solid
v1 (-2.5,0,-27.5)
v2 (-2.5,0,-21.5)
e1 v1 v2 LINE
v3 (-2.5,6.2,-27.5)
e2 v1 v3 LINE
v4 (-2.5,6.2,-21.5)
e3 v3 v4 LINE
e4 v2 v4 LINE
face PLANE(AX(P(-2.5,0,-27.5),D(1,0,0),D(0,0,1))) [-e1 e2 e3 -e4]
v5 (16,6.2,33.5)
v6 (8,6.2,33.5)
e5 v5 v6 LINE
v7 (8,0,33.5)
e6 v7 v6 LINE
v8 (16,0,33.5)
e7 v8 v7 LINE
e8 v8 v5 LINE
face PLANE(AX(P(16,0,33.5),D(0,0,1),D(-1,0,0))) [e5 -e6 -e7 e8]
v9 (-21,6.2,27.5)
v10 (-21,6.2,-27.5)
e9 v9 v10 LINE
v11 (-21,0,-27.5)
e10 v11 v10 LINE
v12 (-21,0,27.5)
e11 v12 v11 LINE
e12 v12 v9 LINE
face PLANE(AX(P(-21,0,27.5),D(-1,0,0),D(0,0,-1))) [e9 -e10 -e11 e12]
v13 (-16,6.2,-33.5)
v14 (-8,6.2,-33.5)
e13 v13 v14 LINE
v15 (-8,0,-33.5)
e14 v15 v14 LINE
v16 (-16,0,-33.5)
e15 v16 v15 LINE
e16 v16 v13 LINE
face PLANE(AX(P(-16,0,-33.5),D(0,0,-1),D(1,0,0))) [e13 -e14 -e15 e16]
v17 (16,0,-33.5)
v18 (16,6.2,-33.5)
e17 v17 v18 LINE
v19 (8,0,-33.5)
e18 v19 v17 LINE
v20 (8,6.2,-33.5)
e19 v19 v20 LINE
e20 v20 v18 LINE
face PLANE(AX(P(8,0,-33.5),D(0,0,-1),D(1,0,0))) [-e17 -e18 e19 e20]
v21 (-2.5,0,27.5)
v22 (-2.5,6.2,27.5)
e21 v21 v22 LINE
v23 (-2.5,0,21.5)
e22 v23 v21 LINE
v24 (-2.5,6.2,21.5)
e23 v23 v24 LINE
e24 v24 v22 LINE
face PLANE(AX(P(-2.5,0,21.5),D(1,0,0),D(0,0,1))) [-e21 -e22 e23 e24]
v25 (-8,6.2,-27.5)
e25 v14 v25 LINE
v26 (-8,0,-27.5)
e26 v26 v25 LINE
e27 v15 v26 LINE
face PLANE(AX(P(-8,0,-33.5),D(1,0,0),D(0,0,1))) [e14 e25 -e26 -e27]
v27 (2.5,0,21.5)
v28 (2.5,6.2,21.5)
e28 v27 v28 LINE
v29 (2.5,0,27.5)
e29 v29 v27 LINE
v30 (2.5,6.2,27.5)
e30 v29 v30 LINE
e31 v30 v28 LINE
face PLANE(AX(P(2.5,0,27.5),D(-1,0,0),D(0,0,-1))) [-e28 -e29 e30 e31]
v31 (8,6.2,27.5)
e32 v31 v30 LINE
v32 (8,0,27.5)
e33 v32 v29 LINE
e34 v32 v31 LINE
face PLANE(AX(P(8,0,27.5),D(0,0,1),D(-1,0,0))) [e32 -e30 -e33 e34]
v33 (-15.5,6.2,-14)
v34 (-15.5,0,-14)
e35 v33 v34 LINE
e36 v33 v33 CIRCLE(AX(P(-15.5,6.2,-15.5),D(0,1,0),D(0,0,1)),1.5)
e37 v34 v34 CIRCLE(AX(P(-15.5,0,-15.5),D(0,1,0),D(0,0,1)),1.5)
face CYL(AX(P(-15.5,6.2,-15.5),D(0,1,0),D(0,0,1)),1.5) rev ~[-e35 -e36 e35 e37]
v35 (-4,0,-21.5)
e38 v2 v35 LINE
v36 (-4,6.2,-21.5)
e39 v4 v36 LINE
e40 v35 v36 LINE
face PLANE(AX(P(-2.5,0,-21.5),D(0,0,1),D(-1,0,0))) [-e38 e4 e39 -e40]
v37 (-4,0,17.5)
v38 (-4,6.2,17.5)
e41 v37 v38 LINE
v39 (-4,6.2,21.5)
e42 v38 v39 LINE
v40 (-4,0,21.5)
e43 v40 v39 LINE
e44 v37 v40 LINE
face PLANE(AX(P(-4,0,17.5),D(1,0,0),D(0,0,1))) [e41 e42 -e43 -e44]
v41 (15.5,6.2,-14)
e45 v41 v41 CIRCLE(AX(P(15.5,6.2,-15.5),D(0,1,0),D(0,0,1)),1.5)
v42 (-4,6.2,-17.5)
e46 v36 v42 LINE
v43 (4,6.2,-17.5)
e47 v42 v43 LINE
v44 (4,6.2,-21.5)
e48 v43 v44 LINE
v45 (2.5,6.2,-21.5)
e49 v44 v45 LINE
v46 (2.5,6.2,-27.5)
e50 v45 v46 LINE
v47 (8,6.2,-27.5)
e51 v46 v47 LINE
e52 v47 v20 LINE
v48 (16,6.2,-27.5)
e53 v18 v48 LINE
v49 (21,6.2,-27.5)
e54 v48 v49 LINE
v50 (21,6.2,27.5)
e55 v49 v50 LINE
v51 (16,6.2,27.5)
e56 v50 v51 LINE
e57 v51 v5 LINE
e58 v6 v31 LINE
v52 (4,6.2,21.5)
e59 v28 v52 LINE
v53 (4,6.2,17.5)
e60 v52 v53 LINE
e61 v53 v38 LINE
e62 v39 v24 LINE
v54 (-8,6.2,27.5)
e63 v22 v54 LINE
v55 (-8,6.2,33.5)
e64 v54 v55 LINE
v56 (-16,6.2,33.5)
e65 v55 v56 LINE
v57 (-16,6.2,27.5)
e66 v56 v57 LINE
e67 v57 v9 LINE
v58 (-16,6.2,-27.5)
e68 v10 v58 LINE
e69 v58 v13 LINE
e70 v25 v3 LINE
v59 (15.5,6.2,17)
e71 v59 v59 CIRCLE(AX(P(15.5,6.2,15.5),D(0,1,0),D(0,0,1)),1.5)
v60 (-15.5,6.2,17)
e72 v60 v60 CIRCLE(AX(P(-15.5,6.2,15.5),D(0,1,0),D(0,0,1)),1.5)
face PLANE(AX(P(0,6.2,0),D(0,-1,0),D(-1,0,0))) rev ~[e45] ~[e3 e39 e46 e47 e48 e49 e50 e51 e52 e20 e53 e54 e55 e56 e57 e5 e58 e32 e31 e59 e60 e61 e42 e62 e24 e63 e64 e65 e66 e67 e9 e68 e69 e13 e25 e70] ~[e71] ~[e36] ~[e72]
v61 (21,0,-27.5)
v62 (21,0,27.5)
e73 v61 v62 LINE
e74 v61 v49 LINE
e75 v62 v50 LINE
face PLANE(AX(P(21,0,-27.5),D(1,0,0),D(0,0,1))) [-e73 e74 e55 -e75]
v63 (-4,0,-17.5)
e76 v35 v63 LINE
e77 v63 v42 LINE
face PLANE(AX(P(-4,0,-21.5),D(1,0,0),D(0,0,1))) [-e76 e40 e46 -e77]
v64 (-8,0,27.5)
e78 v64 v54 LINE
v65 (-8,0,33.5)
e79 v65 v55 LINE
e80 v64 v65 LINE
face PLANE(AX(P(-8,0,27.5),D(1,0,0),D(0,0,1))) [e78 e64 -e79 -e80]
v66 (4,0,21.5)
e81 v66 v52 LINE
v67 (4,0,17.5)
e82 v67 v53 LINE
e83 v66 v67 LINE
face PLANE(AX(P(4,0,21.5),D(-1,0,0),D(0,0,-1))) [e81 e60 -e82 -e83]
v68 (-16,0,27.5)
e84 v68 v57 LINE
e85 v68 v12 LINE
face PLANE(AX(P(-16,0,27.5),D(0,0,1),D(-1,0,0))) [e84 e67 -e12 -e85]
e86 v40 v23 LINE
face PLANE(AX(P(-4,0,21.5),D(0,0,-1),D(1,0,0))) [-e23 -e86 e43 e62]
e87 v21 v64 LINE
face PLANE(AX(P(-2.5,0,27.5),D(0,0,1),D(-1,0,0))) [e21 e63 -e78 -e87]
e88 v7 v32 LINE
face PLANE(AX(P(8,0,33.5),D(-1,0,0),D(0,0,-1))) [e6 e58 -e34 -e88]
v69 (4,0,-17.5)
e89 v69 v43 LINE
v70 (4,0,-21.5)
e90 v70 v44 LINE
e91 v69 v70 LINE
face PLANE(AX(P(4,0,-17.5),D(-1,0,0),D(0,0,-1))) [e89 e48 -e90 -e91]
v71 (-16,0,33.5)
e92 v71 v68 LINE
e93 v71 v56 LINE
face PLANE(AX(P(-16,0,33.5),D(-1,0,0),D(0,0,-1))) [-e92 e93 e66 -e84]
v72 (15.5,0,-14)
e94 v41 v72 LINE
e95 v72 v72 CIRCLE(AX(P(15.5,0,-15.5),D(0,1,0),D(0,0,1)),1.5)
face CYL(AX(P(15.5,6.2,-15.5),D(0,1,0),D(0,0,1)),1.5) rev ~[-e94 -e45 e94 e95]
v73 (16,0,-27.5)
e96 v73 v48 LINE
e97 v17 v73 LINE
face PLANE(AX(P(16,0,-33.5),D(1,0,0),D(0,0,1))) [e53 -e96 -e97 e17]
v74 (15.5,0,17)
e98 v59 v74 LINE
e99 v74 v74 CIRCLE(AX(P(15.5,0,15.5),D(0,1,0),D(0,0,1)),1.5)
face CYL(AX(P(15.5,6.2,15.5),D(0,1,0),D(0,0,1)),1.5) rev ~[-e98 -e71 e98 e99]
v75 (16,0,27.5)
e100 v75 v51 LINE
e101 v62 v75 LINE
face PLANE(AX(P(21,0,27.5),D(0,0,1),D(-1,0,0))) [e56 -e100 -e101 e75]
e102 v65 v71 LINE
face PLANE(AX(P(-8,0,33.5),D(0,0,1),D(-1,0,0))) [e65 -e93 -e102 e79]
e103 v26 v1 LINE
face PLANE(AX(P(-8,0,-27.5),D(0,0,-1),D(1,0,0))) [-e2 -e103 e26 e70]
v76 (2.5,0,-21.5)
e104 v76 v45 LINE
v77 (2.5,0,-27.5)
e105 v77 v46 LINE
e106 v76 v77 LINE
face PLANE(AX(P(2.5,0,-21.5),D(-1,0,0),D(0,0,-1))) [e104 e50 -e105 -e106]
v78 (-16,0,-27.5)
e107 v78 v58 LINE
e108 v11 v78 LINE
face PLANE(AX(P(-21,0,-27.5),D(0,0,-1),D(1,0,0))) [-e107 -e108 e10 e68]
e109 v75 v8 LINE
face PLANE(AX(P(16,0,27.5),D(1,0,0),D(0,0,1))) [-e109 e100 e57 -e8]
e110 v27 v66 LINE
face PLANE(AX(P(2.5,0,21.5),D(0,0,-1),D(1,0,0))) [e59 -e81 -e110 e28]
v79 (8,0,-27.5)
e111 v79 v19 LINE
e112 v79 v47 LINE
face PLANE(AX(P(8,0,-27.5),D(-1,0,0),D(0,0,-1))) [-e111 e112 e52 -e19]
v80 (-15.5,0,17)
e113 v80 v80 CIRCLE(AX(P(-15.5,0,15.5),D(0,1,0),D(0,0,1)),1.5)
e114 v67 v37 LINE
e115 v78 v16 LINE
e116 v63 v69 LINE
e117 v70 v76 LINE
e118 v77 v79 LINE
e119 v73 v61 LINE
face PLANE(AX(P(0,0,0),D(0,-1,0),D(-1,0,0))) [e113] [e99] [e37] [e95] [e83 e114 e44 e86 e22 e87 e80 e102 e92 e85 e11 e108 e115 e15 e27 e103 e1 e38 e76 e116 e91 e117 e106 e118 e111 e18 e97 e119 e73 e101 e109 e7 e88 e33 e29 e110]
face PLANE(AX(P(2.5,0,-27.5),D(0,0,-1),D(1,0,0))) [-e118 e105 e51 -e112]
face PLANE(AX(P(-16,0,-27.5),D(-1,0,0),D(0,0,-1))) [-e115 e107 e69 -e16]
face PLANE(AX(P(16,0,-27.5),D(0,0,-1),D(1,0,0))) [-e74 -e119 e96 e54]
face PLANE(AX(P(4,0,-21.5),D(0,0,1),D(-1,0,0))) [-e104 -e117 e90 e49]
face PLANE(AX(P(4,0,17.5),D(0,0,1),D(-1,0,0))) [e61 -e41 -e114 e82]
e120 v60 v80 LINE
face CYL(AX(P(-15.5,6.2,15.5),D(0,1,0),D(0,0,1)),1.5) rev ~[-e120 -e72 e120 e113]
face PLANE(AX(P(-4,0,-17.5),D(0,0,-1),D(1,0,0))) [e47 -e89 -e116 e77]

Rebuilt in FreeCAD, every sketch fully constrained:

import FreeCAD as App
import Part
import Sketcher
from FreeCAD import Vector
Q = App.Units.Quantity

doc = App.newDocument("Part")
body = doc.addObject("PartDesign::Body", "Body")

# Sketch on XZ plane
sketch1 = body.newObject("Sketcher::SketchObject", "Sketch")
sketch1.AttachmentSupport = (doc.getObject("XZ_Plane"), [""])
sketch1.MapMode = "FlatFace"
sketch1.addGeometry([
    Part.LineSegment(Vector(-16, -27.5, 0), Vector(-21, -27.5, 0)),  # 0
    Part.LineSegment(Vector(-21, -27.5, 0), Vector(-21, 27.5, 0)),  # 1
    Part.LineSegment(Vector(-21, 27.5, 0), Vector(-16, 27.5, 0)),  # 2
    Part.LineSegment(Vector(-16, 27.5, 0), Vector(-16, 33.5, 0)),  # 3
    Part.LineSegment(Vector(-16, 33.5, 0), Vector(-8, 33.5, 0)),  # 4
    Part.LineSegment(Vector(-8, 33.5, 0), Vector(-8, 27.5, 0)),  # 5
    Part.LineSegment(Vector(-8, 27.5, 0), Vector(-2.5, 27.5, 0)),  # 6
    Part.LineSegment(Vector(-2.5, 27.5, 0), Vector(-2.5, 21.5, 0)),  # 7
    Part.LineSegment(Vector(-2.5, 21.5, 0), Vector(-4, 21.5, 0)),  # 8
    Part.LineSegment(Vector(-4, 21.5, 0), Vector(-4, 17.5, 0)),  # 9
    Part.LineSegment(Vector(-4, 17.5, 0), Vector(4, 17.5, 0)),  # 10
    Part.LineSegment(Vector(4, 17.5, 0), Vector(4, 21.5, 0)),  # 11
    Part.LineSegment(Vector(4, 21.5, 0), Vector(2.5, 21.5, 0)),  # 12
    Part.LineSegment(Vector(2.5, 21.5, 0), Vector(2.5, 27.5, 0)),  # 13
    Part.LineSegment(Vector(2.5, 27.5, 0), Vector(8, 27.5, 0)),  # 14
    Part.LineSegment(Vector(8, 27.5, 0), Vector(8, 33.5, 0)),  # 15
    Part.LineSegment(Vector(8, 33.5, 0), Vector(16, 33.5, 0)),  # 16
    Part.LineSegment(Vector(16, 33.5, 0), Vector(16, 27.5, 0)),  # 17
    Part.LineSegment(Vector(16, 27.5, 0), Vector(21, 27.5, 0)),  # 18
    Part.LineSegment(Vector(21, 27.5, 0), Vector(21, -27.5, 0)),  # 19
    Part.LineSegment(Vector(21, -27.5, 0), Vector(16, -27.5, 0)),  # 20
    Part.LineSegment(Vector(16, -27.5, 0), Vector(16, -33.5, 0)),  # 21
    Part.LineSegment(Vector(16, -33.5, 0), Vector(8, -33.5, 0)),  # 22
    Part.LineSegment(Vector(8, -33.5, 0), Vector(8, -27.5, 0)),  # 23
    Part.LineSegment(Vector(8, -27.5, 0), Vector(2.5, -27.5, 0)),  # 24
    Part.LineSegment(Vector(2.5, -27.5, 0), Vector(2.5, -21.5, 0)),  # 25
    Part.LineSegment(Vector(2.5, -21.5, 0), Vector(4, -21.5, 0)),  # 26
    Part.LineSegment(Vector(4, -21.5, 0), Vector(4, -17.5, 0)),  # 27
    Part.LineSegment(Vector(4, -17.5, 0), Vector(-4, -17.5, 0)),  # 28
    Part.LineSegment(Vector(-4, -17.5, 0), Vector(-4, -21.5, 0)),  # 29
    Part.LineSegment(Vector(-4, -21.5, 0), Vector(-2.5, -21.5, 0)),  # 30
    Part.LineSegment(Vector(-2.5, -21.5, 0), Vector(-2.5, -27.5, 0)),  # 31
    Part.LineSegment(Vector(-2.5, -27.5, 0), Vector(-8, -27.5, 0)),  # 32
    Part.LineSegment(Vector(-8, -27.5, 0), Vector(-8, -33.5, 0)),  # 33
    Part.LineSegment(Vector(-8, -33.5, 0), Vector(-16, -33.5, 0)),  # 34
    Part.LineSegment(Vector(-16, -33.5, 0), Vector(-16, -27.5, 0)),  # 35
], False)
sketch1.addConstraint([
    Sketcher.Constraint("Coincident", 0, 2, 1, 1),
    Sketcher.Constraint("Coincident", 1, 2, 2, 1),
    Sketcher.Constraint("Coincident", 2, 2, 3, 1),
    Sketcher.Constraint("Coincident", 3, 2, 4, 1),
    Sketcher.Constraint("Coincident", 4, 2, 5, 1),
    Sketcher.Constraint("Coincident", 5, 2, 6, 1),
    Sketcher.Constraint("Coincident", 6, 2, 7, 1),
    Sketcher.Constraint("Coincident", 7, 2, 8, 1),
    Sketcher.Constraint("Coincident", 8, 2, 9, 1),
    Sketcher.Constraint("Coincident", 9, 2, 10, 1),
    Sketcher.Constraint("Coincident", 10, 2, 11, 1),
    Sketcher.Constraint("Coincident", 11, 2, 12, 1),
    Sketcher.Constraint("Coincident", 12, 2, 13, 1),
    Sketcher.Constraint("Coincident", 13, 2, 14, 1),
    Sketcher.Constraint("Coincident", 14, 2, 15, 1),
    Sketcher.Constraint("Coincident", 15, 2, 16, 1),
    Sketcher.Constraint("Coincident", 16, 2, 17, 1),
    Sketcher.Constraint("Coincident", 17, 2, 18, 1),
    Sketcher.Constraint("Coincident", 18, 2, 19, 1),
    Sketcher.Constraint("Coincident", 19, 2, 20, 1),
    Sketcher.Constraint("Coincident", 20, 2, 21, 1),
    Sketcher.Constraint("Coincident", 21, 2, 22, 1),
    Sketcher.Constraint("Coincident", 22, 2, 23, 1),
    Sketcher.Constraint("Coincident", 23, 2, 24, 1),
    Sketcher.Constraint("Coincident", 24, 2, 25, 1),
    Sketcher.Constraint("Coincident", 25, 2, 26, 1),
    Sketcher.Constraint("Coincident", 26, 2, 27, 1),
    Sketcher.Constraint("Coincident", 27, 2, 28, 1),
    Sketcher.Constraint("Coincident", 28, 2, 29, 1),
    Sketcher.Constraint("Coincident", 29, 2, 30, 1),
    Sketcher.Constraint("Coincident", 30, 2, 31, 1),
    Sketcher.Constraint("Coincident", 31, 2, 32, 1),
    Sketcher.Constraint("Coincident", 32, 2, 33, 1),
    Sketcher.Constraint("Coincident", 33, 2, 34, 1),
    Sketcher.Constraint("Coincident", 34, 2, 35, 1),
    Sketcher.Constraint("Coincident", 35, 2, 0, 1),
    Sketcher.Constraint("Horizontal", 0),
    Sketcher.Constraint("Vertical", 1),
    Sketcher.Constraint("Horizontal", 2),
    Sketcher.Constraint("Vertical", 3),
    Sketcher.Constraint("Horizontal", 4),
    Sketcher.Constraint("Vertical", 5),
    Sketcher.Constraint("Horizontal", 6),
    Sketcher.Constraint("Vertical", 7),
    Sketcher.Constraint("Horizontal", 8),
    Sketcher.Constraint("Vertical", 9),
    Sketcher.Constraint("Horizontal", 10),
    Sketcher.Constraint("Vertical", 11),
    Sketcher.Constraint("Horizontal", 12),
    Sketcher.Constraint("Vertical", 13),
    Sketcher.Constraint("Horizontal", 14),
    Sketcher.Constraint("Vertical", 15),
    Sketcher.Constraint("Horizontal", 16),
    Sketcher.Constraint("Vertical", 17),
    Sketcher.Constraint("Horizontal", 18),
    Sketcher.Constraint("Vertical", 19),
    Sketcher.Constraint("Horizontal", 20),
    Sketcher.Constraint("Vertical", 21),
    Sketcher.Constraint("Horizontal", 22),
    Sketcher.Constraint("Vertical", 23),
    Sketcher.Constraint("Horizontal", 24),
    Sketcher.Constraint("Vertical", 25),
    Sketcher.Constraint("Horizontal", 26),
    Sketcher.Constraint("Vertical", 27),
    Sketcher.Constraint("Horizontal", 28),
    Sketcher.Constraint("Vertical", 29),
    Sketcher.Constraint("Horizontal", 30),
    Sketcher.Constraint("Vertical", 31),
    Sketcher.Constraint("Horizontal", 32),
    Sketcher.Constraint("Vertical", 33),
    Sketcher.Constraint("Horizontal", 34),
    Sketcher.Constraint("Vertical", 35),
    Sketcher.Constraint("Symmetric", 0, 2, 18, 2, -1, 1),
    Sketcher.Constraint("Symmetric", 2, 2, 20, 2, -1, 1),
    Sketcher.Constraint("Symmetric", 4, 2, 22, 2, -1, 1),
    Sketcher.Constraint("Symmetric", 6, 2, 24, 2, -1, 1),
    Sketcher.Constraint("Symmetric", 8, 2, 26, 2, -1, 1),
    Sketcher.Constraint("Symmetric", 10, 2, 28, 2, -1, 1),
    Sketcher.Constraint("Symmetric", 12, 2, 30, 2, -1, 1),
    Sketcher.Constraint("Symmetric", 14, 2, 32, 2, -1, 1),
    Sketcher.Constraint("Symmetric", 16, 2, 34, 2, -1, 1),
    Sketcher.Constraint("Symmetric", 8, 2, 11, 2, -2),
    Sketcher.Constraint("Symmetric", 6, 2, 13, 2, -2),
    Sketcher.Constraint("Symmetric", 4, 2, 15, 2, -2),
    Sketcher.Constraint("Symmetric", 2, 2, 17, 2, -2),
    Sketcher.Constraint("Horizontal", 2, 2, 5, 2),
    Sketcher.Constraint("Equal", 4, 10),
    Sketcher.Constraint("Equal", 5, 7),
    Sketcher.Constraint("DistanceX", 0, 2, 0, 1, Q("5 mm")),
    Sketcher.Constraint("DistanceX", 4, 1, 4, 2, Q("8 mm")),
    Sketcher.Constraint("DistanceY", 1, 1, 1, 2, Q("55 mm")),
    Sketcher.Constraint("DistanceY", 3, 1, 3, 2, Q("6 mm")),
    Sketcher.Constraint("DistanceY", 9, 2, 9, 1, Q("4 mm")),
    Sketcher.Constraint("DistanceX", 6, 1, 6, 2, Q("5.5 mm")),
    Sketcher.Constraint("DistanceX", 8, 2, 8, 1, Q("1.5 mm")),
])
pad1 = body.newObject("PartDesign::Pad", "Pad")
pad1.Profile = sketch1
pad1.Length = 6.2
pad1.Reversed = True

# Sketch on XZ plane
sketch2 = body.newObject("Sketcher::SketchObject", "Sketch001")
sketch2.AttachmentSupport = (doc.getObject("XZ_Plane"), [""])
sketch2.MapMode = "FlatFace"
sketch2.AttachmentOffset = App.Placement(Vector(0, 0, -6.2), App.Rotation())
sketch2.addGeometry(Part.Circle(Vector(15.5, 15.5, 0), Vector(0, 0, 1), 1.5), False)
sketch2.addConstraint([
    Sketcher.Constraint("Diameter", 0, Q("3 mm")),
    Sketcher.Constraint("DistanceX", -1, 1, 0, 3, Q("15.5 mm")),
    Sketcher.Constraint("DistanceY", -1, 1, 0, 3, Q("15.5 mm")),
])
pocket1 = body.newObject("PartDesign::Pocket", "Pocket")
pocket1.Profile = sketch2
pocket1.Type = "UpToFirst"
pocket1.Reversed = True

# Sketch on XZ plane
sketch3 = body.newObject("Sketcher::SketchObject", "Sketch002")
sketch3.AttachmentSupport = (doc.getObject("XZ_Plane"), [""])
sketch3.MapMode = "FlatFace"
sketch3.AttachmentOffset = App.Placement(Vector(0, 0, -6.2), App.Rotation())
sketch3.addGeometry(Part.Circle(Vector(-15.5, 15.5, 0), Vector(0, 0, 1), 1.5), False)
sketch3.addConstraint([
    Sketcher.Constraint("Diameter", 0, Q("3 mm")),
    Sketcher.Constraint("DistanceX", 0, 3, -1, 1, Q("15.5 mm")),
    Sketcher.Constraint("DistanceY", -1, 1, 0, 3, Q("15.5 mm")),
])
pocket2 = body.newObject("PartDesign::Pocket", "Pocket001")
pocket2.Profile = sketch3
pocket2.Type = "UpToFirst"
pocket2.Reversed = True

# Sketch on XZ plane
sketch4 = body.newObject("Sketcher::SketchObject", "Sketch003")
sketch4.AttachmentSupport = (doc.getObject("XZ_Plane"), [""])
sketch4.MapMode = "FlatFace"
sketch4.AttachmentOffset = App.Placement(Vector(0, 0, -6.2), App.Rotation())
sketch4.addGeometry(Part.Circle(Vector(-15.5, -15.5, 0), Vector(0, 0, 1), 1.5), False)
sketch4.addConstraint([
    Sketcher.Constraint("Diameter", 0, Q("3 mm")),
    Sketcher.Constraint("DistanceX", 0, 3, -1, 1, Q("15.5 mm")),
    Sketcher.Constraint("DistanceY", 0, 3, -1, 1, Q("15.5 mm")),
])
pocket3 = body.newObject("PartDesign::Pocket", "Pocket002")
pocket3.Profile = sketch4
pocket3.Type = "UpToFirst"
pocket3.Reversed = True

# Sketch on XZ plane
sketch5 = body.newObject("Sketcher::SketchObject", "Sketch004")
sketch5.AttachmentSupport = (doc.getObject("XZ_Plane"), [""])
sketch5.MapMode = "FlatFace"
sketch5.AttachmentOffset = App.Placement(Vector(0, 0, -6.2), App.Rotation())
sketch5.addGeometry(Part.Circle(Vector(15.5, -15.5, 0), Vector(0, 0, 1), 1.5), False)
sketch5.addConstraint([
    Sketcher.Constraint("Diameter", 0, Q("3 mm")),
    Sketcher.Constraint("DistanceX", -1, 1, 0, 3, Q("15.5 mm")),
    Sketcher.Constraint("DistanceY", 0, 3, -1, 1, Q("15.5 mm")),
])
pocket4 = body.newObject("PartDesign::Pocket", "Pocket003")
pocket4.Profile = sketch5
pocket4.Type = "UpToFirst"
pocket4.Reversed = True

doc.recompute()
